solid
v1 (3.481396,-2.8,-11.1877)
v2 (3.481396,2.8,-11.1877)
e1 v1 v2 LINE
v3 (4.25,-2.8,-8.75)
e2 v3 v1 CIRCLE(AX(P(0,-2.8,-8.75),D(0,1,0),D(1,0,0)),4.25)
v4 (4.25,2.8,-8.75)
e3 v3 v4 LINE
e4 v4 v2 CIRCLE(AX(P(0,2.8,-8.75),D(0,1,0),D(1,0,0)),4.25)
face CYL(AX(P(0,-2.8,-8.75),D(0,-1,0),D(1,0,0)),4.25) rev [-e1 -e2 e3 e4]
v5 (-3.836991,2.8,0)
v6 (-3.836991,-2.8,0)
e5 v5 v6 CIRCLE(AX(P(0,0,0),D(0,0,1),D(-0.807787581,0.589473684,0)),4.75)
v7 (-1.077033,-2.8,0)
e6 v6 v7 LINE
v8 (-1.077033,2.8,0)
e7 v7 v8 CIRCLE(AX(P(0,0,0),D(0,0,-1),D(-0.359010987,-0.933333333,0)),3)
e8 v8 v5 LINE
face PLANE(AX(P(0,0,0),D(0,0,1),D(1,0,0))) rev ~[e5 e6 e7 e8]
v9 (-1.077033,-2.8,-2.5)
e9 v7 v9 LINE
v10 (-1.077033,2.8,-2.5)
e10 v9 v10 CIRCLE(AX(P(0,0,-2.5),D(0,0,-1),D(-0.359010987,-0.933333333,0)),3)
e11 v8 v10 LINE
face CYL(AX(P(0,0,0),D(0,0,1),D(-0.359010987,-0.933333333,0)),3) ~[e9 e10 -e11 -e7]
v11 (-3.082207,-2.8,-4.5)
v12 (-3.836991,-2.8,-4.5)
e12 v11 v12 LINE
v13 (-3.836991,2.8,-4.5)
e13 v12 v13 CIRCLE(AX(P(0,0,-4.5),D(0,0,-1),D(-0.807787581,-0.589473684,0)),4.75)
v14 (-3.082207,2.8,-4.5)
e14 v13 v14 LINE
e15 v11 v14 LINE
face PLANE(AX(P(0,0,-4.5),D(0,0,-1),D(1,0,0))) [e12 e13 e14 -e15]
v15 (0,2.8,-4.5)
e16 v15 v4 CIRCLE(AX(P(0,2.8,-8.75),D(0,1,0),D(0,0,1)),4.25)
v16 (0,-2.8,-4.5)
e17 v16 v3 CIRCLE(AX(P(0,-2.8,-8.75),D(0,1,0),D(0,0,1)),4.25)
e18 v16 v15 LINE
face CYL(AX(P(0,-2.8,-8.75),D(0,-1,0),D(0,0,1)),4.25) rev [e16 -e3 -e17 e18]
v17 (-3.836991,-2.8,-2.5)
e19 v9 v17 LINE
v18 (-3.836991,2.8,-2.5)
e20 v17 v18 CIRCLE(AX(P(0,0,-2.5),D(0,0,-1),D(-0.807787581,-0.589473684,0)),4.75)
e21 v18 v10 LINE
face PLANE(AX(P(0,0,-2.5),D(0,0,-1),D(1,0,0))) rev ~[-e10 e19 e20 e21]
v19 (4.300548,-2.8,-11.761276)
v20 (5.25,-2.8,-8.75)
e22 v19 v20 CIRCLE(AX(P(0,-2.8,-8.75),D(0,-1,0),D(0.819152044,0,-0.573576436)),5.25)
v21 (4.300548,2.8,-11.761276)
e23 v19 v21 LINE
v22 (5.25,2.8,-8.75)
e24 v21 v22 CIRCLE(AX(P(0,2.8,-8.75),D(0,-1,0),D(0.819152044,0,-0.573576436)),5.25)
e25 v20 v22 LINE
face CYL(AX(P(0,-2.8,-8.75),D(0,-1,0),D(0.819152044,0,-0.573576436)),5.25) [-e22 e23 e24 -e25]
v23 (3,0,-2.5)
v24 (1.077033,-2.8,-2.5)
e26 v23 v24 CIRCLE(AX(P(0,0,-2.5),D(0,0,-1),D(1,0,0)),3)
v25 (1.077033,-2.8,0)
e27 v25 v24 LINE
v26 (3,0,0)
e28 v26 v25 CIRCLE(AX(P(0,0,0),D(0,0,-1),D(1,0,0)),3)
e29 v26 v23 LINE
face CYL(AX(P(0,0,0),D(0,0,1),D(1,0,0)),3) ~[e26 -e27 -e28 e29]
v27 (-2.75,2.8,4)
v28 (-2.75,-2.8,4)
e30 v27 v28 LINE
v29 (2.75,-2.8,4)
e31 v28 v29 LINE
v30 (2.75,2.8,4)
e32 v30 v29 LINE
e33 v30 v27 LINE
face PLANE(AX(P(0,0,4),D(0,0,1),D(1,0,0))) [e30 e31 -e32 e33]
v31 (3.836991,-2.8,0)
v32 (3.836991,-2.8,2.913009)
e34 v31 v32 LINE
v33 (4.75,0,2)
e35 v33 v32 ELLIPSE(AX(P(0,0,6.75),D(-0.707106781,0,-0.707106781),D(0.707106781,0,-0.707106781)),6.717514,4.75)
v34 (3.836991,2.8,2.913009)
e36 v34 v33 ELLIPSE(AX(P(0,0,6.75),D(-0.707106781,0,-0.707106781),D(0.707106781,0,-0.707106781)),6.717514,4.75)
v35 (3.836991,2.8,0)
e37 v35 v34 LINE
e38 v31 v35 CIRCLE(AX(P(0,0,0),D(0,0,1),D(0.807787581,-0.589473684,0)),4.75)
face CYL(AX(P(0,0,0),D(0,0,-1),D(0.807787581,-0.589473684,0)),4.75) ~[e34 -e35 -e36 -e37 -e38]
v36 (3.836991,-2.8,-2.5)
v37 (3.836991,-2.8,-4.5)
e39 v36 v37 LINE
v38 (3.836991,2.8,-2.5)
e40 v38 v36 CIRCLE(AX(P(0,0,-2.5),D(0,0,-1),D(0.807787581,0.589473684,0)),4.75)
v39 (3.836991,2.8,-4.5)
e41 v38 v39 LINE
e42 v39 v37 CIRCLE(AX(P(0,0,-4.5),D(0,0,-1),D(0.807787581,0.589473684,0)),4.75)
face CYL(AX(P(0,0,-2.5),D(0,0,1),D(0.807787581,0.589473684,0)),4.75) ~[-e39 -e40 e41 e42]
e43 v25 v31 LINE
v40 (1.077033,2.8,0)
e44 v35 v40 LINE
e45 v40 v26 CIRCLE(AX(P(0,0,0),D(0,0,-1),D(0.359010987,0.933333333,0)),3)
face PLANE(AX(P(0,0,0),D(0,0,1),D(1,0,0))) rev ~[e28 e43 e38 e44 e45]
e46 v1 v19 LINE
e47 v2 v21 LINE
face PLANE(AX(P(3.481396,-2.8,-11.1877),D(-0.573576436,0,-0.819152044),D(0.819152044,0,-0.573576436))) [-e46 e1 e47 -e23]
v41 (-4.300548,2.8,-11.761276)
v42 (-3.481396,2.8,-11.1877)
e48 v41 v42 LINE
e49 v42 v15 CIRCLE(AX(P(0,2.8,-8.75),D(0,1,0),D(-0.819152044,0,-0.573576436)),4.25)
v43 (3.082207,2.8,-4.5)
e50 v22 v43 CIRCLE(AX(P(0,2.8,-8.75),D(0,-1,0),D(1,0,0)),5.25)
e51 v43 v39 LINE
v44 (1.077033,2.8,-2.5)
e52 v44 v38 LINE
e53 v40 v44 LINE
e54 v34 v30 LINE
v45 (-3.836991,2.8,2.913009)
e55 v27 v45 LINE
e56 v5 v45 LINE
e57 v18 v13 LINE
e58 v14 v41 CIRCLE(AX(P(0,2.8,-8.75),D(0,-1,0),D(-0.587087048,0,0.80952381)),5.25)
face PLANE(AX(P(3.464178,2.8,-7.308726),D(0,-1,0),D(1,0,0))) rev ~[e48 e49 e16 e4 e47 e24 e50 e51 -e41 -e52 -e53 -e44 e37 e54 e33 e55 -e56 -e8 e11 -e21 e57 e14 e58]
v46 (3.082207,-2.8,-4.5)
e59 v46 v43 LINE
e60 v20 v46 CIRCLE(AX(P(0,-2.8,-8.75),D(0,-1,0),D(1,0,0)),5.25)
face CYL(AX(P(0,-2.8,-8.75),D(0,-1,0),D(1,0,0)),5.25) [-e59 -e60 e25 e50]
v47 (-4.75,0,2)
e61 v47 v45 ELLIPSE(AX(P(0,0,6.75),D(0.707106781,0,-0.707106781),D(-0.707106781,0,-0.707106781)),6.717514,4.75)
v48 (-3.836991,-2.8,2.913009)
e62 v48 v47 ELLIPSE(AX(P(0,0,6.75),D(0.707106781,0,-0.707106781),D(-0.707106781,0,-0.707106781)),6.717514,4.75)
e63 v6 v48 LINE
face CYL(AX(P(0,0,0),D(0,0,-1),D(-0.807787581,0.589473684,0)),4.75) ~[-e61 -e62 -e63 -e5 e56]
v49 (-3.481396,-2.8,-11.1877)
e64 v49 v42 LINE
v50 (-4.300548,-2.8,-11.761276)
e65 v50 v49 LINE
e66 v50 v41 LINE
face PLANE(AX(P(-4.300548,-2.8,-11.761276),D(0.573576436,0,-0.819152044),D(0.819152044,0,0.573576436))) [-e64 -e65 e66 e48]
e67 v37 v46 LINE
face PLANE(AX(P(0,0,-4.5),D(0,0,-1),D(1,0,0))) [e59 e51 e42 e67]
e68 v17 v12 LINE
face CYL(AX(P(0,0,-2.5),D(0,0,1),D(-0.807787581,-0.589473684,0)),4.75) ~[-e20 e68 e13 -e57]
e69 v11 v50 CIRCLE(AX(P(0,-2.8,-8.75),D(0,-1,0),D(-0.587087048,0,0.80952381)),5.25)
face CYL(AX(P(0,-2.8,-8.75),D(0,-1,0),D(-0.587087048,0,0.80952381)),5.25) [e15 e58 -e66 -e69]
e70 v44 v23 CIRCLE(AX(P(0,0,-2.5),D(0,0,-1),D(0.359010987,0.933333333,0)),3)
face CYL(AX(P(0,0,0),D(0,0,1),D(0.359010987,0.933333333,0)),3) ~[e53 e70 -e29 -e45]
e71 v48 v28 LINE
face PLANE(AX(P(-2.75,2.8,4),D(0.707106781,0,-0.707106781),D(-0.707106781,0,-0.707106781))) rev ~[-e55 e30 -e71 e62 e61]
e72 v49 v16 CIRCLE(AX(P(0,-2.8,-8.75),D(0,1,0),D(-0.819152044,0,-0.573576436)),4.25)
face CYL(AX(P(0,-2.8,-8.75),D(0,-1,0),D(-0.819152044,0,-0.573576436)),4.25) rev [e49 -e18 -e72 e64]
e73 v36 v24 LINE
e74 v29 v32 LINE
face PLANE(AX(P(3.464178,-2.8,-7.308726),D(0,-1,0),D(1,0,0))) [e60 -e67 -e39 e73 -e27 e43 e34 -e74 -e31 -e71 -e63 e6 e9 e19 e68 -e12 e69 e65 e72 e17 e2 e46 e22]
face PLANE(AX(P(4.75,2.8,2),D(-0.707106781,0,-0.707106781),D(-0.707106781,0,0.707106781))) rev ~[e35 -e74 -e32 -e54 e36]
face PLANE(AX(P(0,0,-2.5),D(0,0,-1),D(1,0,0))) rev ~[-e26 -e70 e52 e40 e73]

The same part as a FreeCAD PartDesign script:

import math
import FreeCAD as App
import Part
import Sketcher

V = App.Vector
Q = App.Units.Quantity

doc = App.newDocument("Part")
body = doc.addObject("PartDesign::Body", "Body")

# Sketch on XY plane
sketch1 = body.newObject("Sketcher::SketchObject", "Sketch")
sketch1.AttachmentSupport = (doc.getObject("XY_Plane"), [""])
sketch1.MapMode = "FlatFace"
sketch1.addGeometry([
    Part.LineSegment(V(3.8, 2.8, 0), V(-3.8, 2.8, 0)),
    Part.ArcOfCircle(Part.Circle(V(0, 0, 0), V(0, 0, 1), 4.8), math.radians(144), math.radians(216)),
    Part.LineSegment(V(-3.8, -2.8, 0), V(3.8, -2.8, 0)),
    Part.ArcOfCircle(Part.Circle(V(0, 0, 0), V(0, 0, 1), 4.8), math.radians(-36), math.radians(36)),
], False)
sketch1.addConstraint([
    Sketcher.Constraint("Coincident", 0, 2, 1, 1),
    Sketcher.Constraint("Coincident", 1, 2, 2, 1),
    Sketcher.Constraint("Coincident", 2, 2, 3, 1),
    Sketcher.Constraint("Coincident", 3, 2, 0, 1),
    Sketcher.Constraint("Horizontal", 0),
    Sketcher.Constraint("Horizontal", 2),
    Sketcher.Constraint("Coincident", 1, 3, -1, 1),
    Sketcher.Constraint("Coincident", 3, 3, -1, 1),
    Sketcher.Constraint("Equal", 1, 3),
    Sketcher.Constraint("Vertical", 0, 2, 1, 2),
    Sketcher.Constraint("Radius", 1, Q("4.75 mm")),
    Sketcher.Constraint("DistanceY", -1, 1, 0, 2, Q("2.8 mm")),
])
pad1 = body.newObject("PartDesign::Pad", "Pad")
pad1.Profile = sketch1
pad1.Length = 4

# Sketch on XY plane
sketch2 = body.newObject("Sketcher::SketchObject", "Sketch001")
sketch2.AttachmentSupport = (doc.getObject("XY_Plane"), [""])
sketch2.MapMode = "FlatFace"
sketch2.addGeometry([
    Part.ArcOfCircle(Part.Circle(V(0, 0, 0), V(0, 0, 1), 3), math.radians(0), math.radians(69)),  # 0
    Part.ArcOfCircle(Part.Circle(V(0, 0, 0), V(0, 0, 1), 3), math.radians(-69), math.radians(0)),  # 1
    Part.LineSegment(V(1.1, -2.8, 0), V(-1.1, -2.8, 0)),  # 2
    Part.ArcOfCircle(Part.Circle(V(0, 0, 0), V(0, 0, 1), 3), math.radians(111), math.radians(249)),  # 3
    Part.LineSegment(V(-1.1, 2.8, 0), V(1.1, 2.8, 0)),  # 4
], False)
sketch2.addConstraint([
    Sketcher.Constraint("Tangent", 0, 1, 1, 2),
    Sketcher.Constraint("Coincident", 1, 1, 2, 1),
    Sketcher.Constraint("Coincident", 2, 2, 3, 2),
    Sketcher.Constraint("Coincident", 3, 1, 4, 1),
    Sketcher.Constraint("Coincident", 4, 2, 0, 2),
    Sketcher.Constraint("Horizontal", 2),
    Sketcher.Constraint("Horizontal", 4),
    Sketcher.Constraint("Coincident", 0, 3, -1, 1),
    Sketcher.Constraint("Coincident", 3, 3, -1, 1),
    Sketcher.Constraint("Equal", 0, 1),
    Sketcher.Constraint("Equal", 1, 3),
    Sketcher.Constraint("PointOnObject", 0, 1, -1),
    Sketcher.Constraint("Vertical", 2, 2, 3, 1),
    Sketcher.Constraint("Radius", 0, Q("3 mm")),
    Sketcher.Constraint("DistanceY", 1, 1, -1, 1, Q("2.8 mm")),
])
pad2 = body.newObject("PartDesign::Pad", "Pad001")
pad2.Profile = sketch2
pad2.Length = 2.5
pad2.Reversed = True

# Sketch on XY plane
sketch3 = body.newObject("Sketcher::SketchObject", "Sketch002")
sketch3.AttachmentSupport = (doc.getObject("XY_Plane"), [""])
sketch3.MapMode = "FlatFace"
sketch3.AttachmentOffset = App.Placement(V(0, 0, -2.5), App.Rotation())
sketch3.addGeometry([
    Part.ArcOfCircle(Part.Circle(V(0, 0, 0), V(0, 0, 1), 4.8), math.radians(-36), math.radians(36)),
    Part.LineSegment(V(3.8, -2.8, 0), V(-3.8, -2.8, 0)),
    Part.ArcOfCircle(Part.Circle(V(0, 0, 0), V(0, 0, 1), 4.8), math.radians(144), math.radians(216)),
    Part.LineSegment(V(-3.8, 2.8, 0), V(3.8, 2.8, 0)),
], False)
sketch3.addConstraint([
    Sketcher.Constraint("Coincident", 0, 1, 1, 1),
    Sketcher.Constraint("Coincident", 1, 2, 2, 2),
    Sketcher.Constraint("Coincident", 2, 1, 3, 1),
    Sketcher.Constraint("Coincident", 3, 2, 0, 2),
    Sketcher.Constraint("Horizontal", 1),
    Sketcher.Constraint("Horizontal", 3),
    Sketcher.Constraint("Coincident", 0, 3, -1, 1),
    Sketcher.Constraint("Coincident", 2, 3, -1, 1),
    Sketcher.Constraint("Equal", 0, 2),
    Sketcher.Constraint("Vertical", 1, 2, 2, 1),
    Sketcher.Constraint("Radius", 0, Q("4.75 mm")),
    Sketcher.Constraint("DistanceY", 0, 1, -1, 1, Q("2.8 mm")),
])
pad3 = body.newObject("PartDesign::Pad", "Pad002")
pad3.Profile = sketch3
pad3.Length = 2
pad3.Reversed = True

# Sketch on XZ plane
sketch4 = body.newObject("Sketcher::SketchObject", "Sketch003")
sketch4.AttachmentSupport = (doc.getObject("XZ_Plane"), [""])
sketch4.MapMode = "FlatFace"
sketch4.AttachmentOffset = App.Placement(V(0, 0, 2.8), App.Rotation())
sketch4.addGeometry([
    Part.ArcOfCircle(Part.Circle(V(0, -8.8, 0), V(0, 0, 1), 4.2), math.radians(0), math.radians(90)),  # 0
    Part.ArcOfCircle(Part.Circle(V(0, -8.8, 0), V(0, 0, 1), 4.2), math.radians(-35), math.radians(0)),  # 1
    Part.LineSegment(V(3.5, -11.2, 0), V(4.3, -11.8, 0)),  # 2
    Part.ArcOfCircle(Part.Circle(V(0, -8.8, 0), V(0, 0, 1), 5.2), math.radians(-35), math.radians(0)),  # 3
    Part.ArcOfCircle(Part.Circle(V(0, -8.8, 0), V(0, 0, 1), 5.2), math.radians(0), math.radians(54)),  # 4
    Part.LineSegment(V(3.1, -4.5, 0), V(0, -4.5, 0)),  # 5
    Part.ArcOfCircle(Part.Circle(V(0, -8.8, 0), V(0, 0, 1), 4.2), math.radians(90), math.radians(215)),  # 6
    Part.LineSegment(V(0, -4.5, 0), V(-3.1, -4.5, 0)),  # 7
    Part.ArcOfCircle(Part.Circle(V(0, -8.8, 0), V(0, 0, 1), 5.2), math.radians(126), math.radians(215)),  # 8
    Part.LineSegment(V(-4.3, -11.8, 0), V(-3.5, -11.2, 0)),  # 9
], False)
sketch4.addConstraint([
    Sketcher.Constraint("Tangent", 0, 1, 1, 2),
    Sketcher.Constraint("Coincident", 1, 1, 2, 1),
    Sketcher.Constraint("Coincident", 2, 2, 3, 1),
    Sketcher.Constraint("Tangent", 3, 2, 4, 1),
    Sketcher.Constraint("Coincident", 4, 2, 5, 1),
    Sketcher.Constraint("Tangent", 5, 2, 0, 2),
    Sketcher.Constraint("Tangent", 6, 1, 7, 1),
    Sketcher.Constraint("Coincident", 7, 2, 8, 1),
    Sketcher.Constraint("Coincident", 8, 2, 9, 1),
    Sketcher.Constraint("Coincident", 9, 2, 6, 2),
    Sketcher.Constraint("Horizontal", 5),
    Sketcher.Constraint("Horizontal", 7),
    Sketcher.Constraint("Coincident", 3, 3, 0, 3),
    Sketcher.Constraint("Coincident", 6, 3, 0, 3),
    Sketcher.Constraint("Coincident", 8, 3, 0, 3),
    Sketcher.Constraint("Equal", 0, 1),
    Sketcher.Constraint("Equal", 3, 4),
    Sketcher.Constraint("Equal", 1, 6),
    Sketcher.Constraint("Equal", 4, 8),
    Sketcher.Constraint("Symmetric", 2, 2, 8, 2, -2),
    Sketcher.Constraint("Horizontal", 8, 3, 0, 1),
    Sketcher.Constraint("Horizontal", 0, 1, 3, 2),
    Sketcher.Constraint("Horizontal", 1, 1, 9, 2),
    Sketcher.Constraint("Angle", 2, Q("-35 deg")),
    Sketcher.Constraint("Radius", 0, Q("4.25 mm")),
    Sketcher.Constraint("Radius", 3, Q("5.25 mm")),
    Sketcher.Constraint("DistanceY", 4, 2, -1, 1, Q("4.5 mm")),
    Sketcher.Constraint("DistanceY", 1, 1, -1, 1, Q("11.1877 mm")),
])
pad4 = body.newObject("PartDesign::Pad", "Pad003")
pad4.Profile = sketch4
pad4.Length = 5.6
pad4.Reversed = True

# Sketch on XZ plane
sketch5 = body.newObject("Sketcher::SketchObject", "Sketch004")
sketch5.AttachmentSupport = (doc.getObject("XZ_Plane"), [""])
sketch5.MapMode = "FlatFace"
sketch5.AttachmentOffset = App.Placement(V(0, 0, -2.8), App.Rotation())
sketch5.addGeometry([
    Part.LineSegment(V(-4.8, 2, 0), V(-4.8, 4, 0)),  # 0
    Part.LineSegment(V(-4.8, 4, 0), V(-2.8, 4, 0)),  # 1
    Part.LineSegment(V(-2.8, 4, 0), V(-4.8, 2, 0)),  # 2
    Part.LineSegment(V(2.8, 4, 0), V(4.8, 4, 0)),  # 3
    Part.LineSegment(V(4.8, 4, 0), V(4.8, 2, 0)),  # 4
    Part.LineSegment(V(4.8, 2, 0), V(2.8, 4, 0)),  # 5
], False)
sketch5.addConstraint([
    Sketcher.Constraint("Coincident", 0, 2, 1, 1),
    Sketcher.Constraint("Coincident", 1, 2, 2, 1),
    Sketcher.Constraint("Coincident", 2, 2, 0, 1),
    Sketcher.Constraint("Coincident", 3, 2, 4, 1),
    Sketcher.Constraint("Coincident", 4, 2, 5, 1),
    Sketcher.Constraint("Coincident", 5, 2, 3, 1),
    Sketcher.Constraint("Vertical", 0),
    Sketcher.Constraint("Horizontal", 1),
    Sketcher.Constraint("Horizontal", 3),
    Sketcher.Constraint("Vertical", 4),
    Sketcher.Constraint("Symmetric", 0, 2, 3, 2, -2),
    Sketcher.Constraint("Perpendicular", 2, 5),
    Sketcher.Constraint("Horizontal", 2, 2, 4, 2),
    Sketcher.Constraint("Equal", 1, 3),
    Sketcher.Constraint("DistanceX", 1, 1, 1, 2, Q("2 mm")),
    Sketcher.Constraint("DistanceY", -1, 1, 0, 2, Q("4 mm")),
    Sketcher.Constraint("DistanceX", 1, 2, 3, 2, Q("7.5 mm")),
])
pocket1 = body.newObject("PartDesign::Pocket", "Pocket")
pocket1.Profile = sketch5
pocket1.Length = 25
pocket1.Reversed = True

doc.recompute()
